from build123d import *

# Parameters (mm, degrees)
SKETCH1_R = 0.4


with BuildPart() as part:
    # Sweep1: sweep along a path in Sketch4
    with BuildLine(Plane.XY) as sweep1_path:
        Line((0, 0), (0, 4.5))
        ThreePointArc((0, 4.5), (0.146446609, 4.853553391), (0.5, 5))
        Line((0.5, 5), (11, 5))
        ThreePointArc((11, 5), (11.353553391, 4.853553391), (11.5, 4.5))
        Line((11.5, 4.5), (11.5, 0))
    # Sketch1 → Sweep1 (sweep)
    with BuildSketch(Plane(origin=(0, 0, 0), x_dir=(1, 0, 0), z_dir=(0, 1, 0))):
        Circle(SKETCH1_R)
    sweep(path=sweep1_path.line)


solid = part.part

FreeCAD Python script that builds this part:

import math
import FreeCAD as App
import Part
import Sketcher

V = App.Vector
Q = App.Units.Quantity

doc = App.newDocument("Part")
body = doc.addObject("PartDesign::Body", "Body")

sketch1 = doc.addObject("Sketcher::SketchObject", "Sketch")
body.addObject(sketch1)
sketch1.AttachmentSupport = (doc.XZ_Plane, [""])
sketch1.MapMode = "FlatFace"
sketch1.addGeometry(Part.Circle(V(0, 0, 0), V(0, 0, 1), 0.4), False)
sketch1.addConstraint(Sketcher.Constraint("Coincident", 0, 3, -1, 1))
sketch1.addConstraint(Sketcher.Constraint("Diameter", 0, Q("0.8 mm")))

sketch2 = doc.addObject("Sketcher::SketchObject", "Sketch001")
body.addObject(sketch2)
sketch2.AttachmentSupport = (doc.XY_Plane, [""])
sketch2.MapMode = "FlatFace"
sketch2.addGeometry(Part.LineSegment(V(0, 0, 0), V(0, 4.5, 0)), False)
sketch2.addGeometry(Part.ArcOfCircle(Part.Circle(V(0.5, 4.5, 0), V(0, 0, 1), 0.5), math.radians(90), math.radians(180)), False)
sketch2.addGeometry(Part.LineSegment(V(0.5, 5, 0), V(11, 5, 0)), False)
sketch2.addGeometry(Part.ArcOfCircle(Part.Circle(V(11, 4.5, 0), V(0, 0, 1), 0.5), math.radians(0), math.radians(90)), False)
sketch2.addGeometry(Part.LineSegment(V(11.5, 4.5, 0), V(11.5, 0, 0)), False)
sketch2.addConstraint(Sketcher.Constraint("Tangent", 0, 2, 1, 2))
sketch2.addConstraint(Sketcher.Constraint("Tangent", 1, 1, 2, 1))
sketch2.addConstraint(Sketcher.Constraint("Tangent", 2, 2, 3, 2))
sketch2.addConstraint(Sketcher.Constraint("Tangent", 3, 1, 4, 1))
sketch2.addConstraint(Sketcher.Constraint("Vertical", 0))
sketch2.addConstraint(Sketcher.Constraint("Horizontal", 2))
sketch2.addConstraint(Sketcher.Constraint("Vertical", 4))
sketch2.addConstraint(Sketcher.Constraint("Coincident", 0, 1, -1, 1))
sketch2.addConstraint(Sketcher.Constraint("Equal", 1, 3))
sketch2.addConstraint(Sketcher.Constraint("PointOnObject", 4, 2, -1))
sketch2.addConstraint(Sketcher.Constraint("Radius", 1, Q("0.5 mm")))
sketch2.addConstraint(Sketcher.Constraint("DistanceX", 2, 1, 2, 2, Q("10.5 mm")))
sketch2.addConstraint(Sketcher.Constraint("DistanceY", 0, 1, 0, 2, Q("4.5 mm")))
doc.recompute()

additivepipe = doc.addObject("PartDesign::AdditivePipe", "AdditivePipe")
body.addObject(additivepipe)
additivepipe.Profile = sketch1
additivepipe.Spine = (sketch2, ["Edge1", "Edge2", "Edge3", "Edge4", "Edge5"])

doc.recompute()
